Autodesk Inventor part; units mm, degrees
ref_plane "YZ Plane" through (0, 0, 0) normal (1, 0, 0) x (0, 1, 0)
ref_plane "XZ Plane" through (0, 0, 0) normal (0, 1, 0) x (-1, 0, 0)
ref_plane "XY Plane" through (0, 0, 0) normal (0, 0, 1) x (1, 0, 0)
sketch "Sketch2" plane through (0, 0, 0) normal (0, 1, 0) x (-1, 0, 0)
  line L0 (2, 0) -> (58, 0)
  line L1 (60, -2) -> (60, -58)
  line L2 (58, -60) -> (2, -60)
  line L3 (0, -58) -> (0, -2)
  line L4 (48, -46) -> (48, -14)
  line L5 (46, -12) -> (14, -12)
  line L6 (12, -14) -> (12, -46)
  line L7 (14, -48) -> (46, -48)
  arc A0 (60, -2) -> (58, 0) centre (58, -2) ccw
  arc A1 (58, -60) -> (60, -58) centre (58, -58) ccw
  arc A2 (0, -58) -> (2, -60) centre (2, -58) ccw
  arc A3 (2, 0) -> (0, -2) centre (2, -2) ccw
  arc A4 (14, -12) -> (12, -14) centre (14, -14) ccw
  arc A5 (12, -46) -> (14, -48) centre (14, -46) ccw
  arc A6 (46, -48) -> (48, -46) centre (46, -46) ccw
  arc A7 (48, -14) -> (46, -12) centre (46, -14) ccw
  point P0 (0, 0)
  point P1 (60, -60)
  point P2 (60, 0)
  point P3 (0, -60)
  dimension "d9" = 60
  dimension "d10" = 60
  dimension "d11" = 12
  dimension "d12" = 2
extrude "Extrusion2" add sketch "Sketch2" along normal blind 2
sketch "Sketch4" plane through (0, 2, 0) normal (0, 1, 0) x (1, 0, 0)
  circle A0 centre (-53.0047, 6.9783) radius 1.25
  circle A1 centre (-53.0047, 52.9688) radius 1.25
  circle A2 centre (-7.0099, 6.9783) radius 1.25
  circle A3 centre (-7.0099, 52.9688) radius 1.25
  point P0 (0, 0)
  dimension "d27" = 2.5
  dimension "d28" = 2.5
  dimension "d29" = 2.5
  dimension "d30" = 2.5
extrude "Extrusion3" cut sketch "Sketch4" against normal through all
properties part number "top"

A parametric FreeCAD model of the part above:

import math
import FreeCAD as App
import Part
import Sketcher
Q = App.Units.Quantity

doc = App.newDocument("Part")
params = doc.addObject("Spreadsheet::Sheet", "Params")
for row, (alias, value) in enumerate([
    ("sketch1_radius", "2 mm"),
    ("pad1_length", "2 mm"),
    ("sketch2_diameter", "2.5 mm"),
], start=1):
    params.set(f"A{row}", alias)
    params.set(f"B{row}", "=" + value)
    params.setAlias(f"B{row}", alias)

body = doc.addObject("PartDesign::Body", "Body")

# Sketch on XZ plane
sketch1 = doc.addObject("Sketcher::SketchObject", "Sketch")
body.addObject(sketch1)
sketch1.AttachmentSupport = (doc.XZ_Plane, [""])
sketch1.MapMode = "FlatFace"
sketch1.addGeometry([
    Part.LineSegment(App.Vector(-58, 0, 0), App.Vector(-2, 0, 0)),  # 0
    Part.ArcOfCircle(Part.Circle(App.Vector(-2, -2, 0), App.Vector(0, 0, 1), 2), math.radians(0), math.radians(90)),  # 1
    Part.LineSegment(App.Vector(0, -2, 0), App.Vector(0, -58, 0)),  # 2
    Part.ArcOfCircle(Part.Circle(App.Vector(-2, -58, 0), App.Vector(0, 0, 1), 2), math.radians(-90), math.radians(0)),  # 3
    Part.LineSegment(App.Vector(-2, -60, 0), App.Vector(-58, -60, 0)),  # 4
    Part.ArcOfCircle(Part.Circle(App.Vector(-58, -58, 0), App.Vector(0, 0, 1), 2), math.radians(180), math.radians(270)),  # 5
    Part.LineSegment(App.Vector(-60, -58, 0), App.Vector(-60, -2, 0)),  # 6
    Part.ArcOfCircle(Part.Circle(App.Vector(-58, -2, 0), App.Vector(0, 0, 1), 2), math.radians(90), math.radians(180)),  # 7
    Part.LineSegment(App.Vector(-48, -14, 0), App.Vector(-48, -46, 0)),  # 8
    Part.ArcOfCircle(Part.Circle(App.Vector(-46, -46, 0), App.Vector(0, 0, 1), 2), math.radians(180), math.radians(270)),  # 9
    Part.LineSegment(App.Vector(-46, -48, 0), App.Vector(-14, -48, 0)),  # 10
    Part.ArcOfCircle(Part.Circle(App.Vector(-14, -46, 0), App.Vector(0, 0, 1), 2), math.radians(-90), math.radians(0)),  # 11
    Part.LineSegment(App.Vector(-12, -46, 0), App.Vector(-12, -14, 0)),  # 12
    Part.ArcOfCircle(Part.Circle(App.Vector(-14, -14, 0), App.Vector(0, 0, 1), 2), math.radians(0), math.radians(90)),  # 13
    Part.LineSegment(App.Vector(-14, -12, 0), App.Vector(-46, -12, 0)),  # 14
    Part.ArcOfCircle(Part.Circle(App.Vector(-46, -14, 0), App.Vector(0, 0, 1), 2), math.radians(90), math.radians(180)),  # 15
], False)
sketch1.addConstraint([
    Sketcher.Constraint("Tangent", 0, 2, 1, 2),
    Sketcher.Constraint("Tangent", 1, 1, 2, 1),
    Sketcher.Constraint("Tangent", 2, 2, 3, 2),
    Sketcher.Constraint("Tangent", 3, 1, 4, 1),
    Sketcher.Constraint("Tangent", 4, 2, 5, 2),
    Sketcher.Constraint("Tangent", 5, 1, 6, 1),
    Sketcher.Constraint("Tangent", 6, 2, 7, 2),
    Sketcher.Constraint("Tangent", 7, 1, 0, 1),
    Sketcher.Constraint("Tangent", 8, 2, 9, 1),
    Sketcher.Constraint("Tangent", 9, 2, 10, 1),
    Sketcher.Constraint("Tangent", 10, 2, 11, 1),
    Sketcher.Constraint("Tangent", 11, 2, 12, 1),
    Sketcher.Constraint("Tangent", 12, 2, 13, 1),
    Sketcher.Constraint("Tangent", 13, 2, 14, 1),
    Sketcher.Constraint("Tangent", 14, 2, 15, 1),
    Sketcher.Constraint("Tangent", 15, 2, 8, 1),
    Sketcher.Constraint("Horizontal", 0),
    Sketcher.Constraint("Vertical", 2),
    Sketcher.Constraint("Horizontal", 4),
    Sketcher.Constraint("Vertical", 6),
    Sketcher.Constraint("Vertical", 8),
    Sketcher.Constraint("Horizontal", 10),
    Sketcher.Constraint("Vertical", 12),
    Sketcher.Constraint("Horizontal", 14),
    Sketcher.Constraint("Equal", 1, 3),
    Sketcher.Constraint("Equal", 3, 5),
    Sketcher.Constraint("Equal", 5, 7),
    Sketcher.Constraint("Equal", 7, 9),
    Sketcher.Constraint("Equal", 9, 11),
    Sketcher.Constraint("Equal", 11, 13),
    Sketcher.Constraint("Equal", 13, 15),
    Sketcher.Constraint("PointOnObject", 0, 2, -1),
    Sketcher.Constraint("PointOnObject", 1, 1, -2),
    Sketcher.Constraint("Equal", 4, 2),
    Sketcher.Constraint("Equal", 14, 8),
    Sketcher.Constraint("Radius", 1, Q("2 mm")),
    Sketcher.Constraint("DistanceY", 3, 1, -1, 1, Q("60 mm")),
    Sketcher.Constraint("DistanceX", 11, 2, -1, 1, Q("12 mm")),
    Sketcher.Constraint("DistanceY", 13, 2, -1, 1, Q("12 mm")),
    Sketcher.Constraint("DistanceX", 5, 3, 9, 3, Q("12 mm")),
])
sketch1.setExpression("Constraints[35]", "Params.sketch1_radius")
pad1 = doc.addObject("PartDesign::Pad", "Pad")
body.addObject(pad1)
pad1.Profile = sketch1
pad1.setExpression("Length", "Params.pad1_length")
pad1.Reversed = True

# Sketch on XZ plane
sketch2 = doc.addObject("Sketcher::SketchObject", "Sketch001")
body.addObject(sketch2)
sketch2.AttachmentSupport = (doc.XZ_Plane, [""])
sketch2.MapMode = "FlatFace"
sketch2.AttachmentOffset = App.Placement(App.Vector(0, 0, -2), App.Rotation())
sketch2.addGeometry([
    Part.Circle(App.Vector(-53.0047, -6.9783, 0), App.Vector(0, 0, 1), 1.25),
    Part.Circle(App.Vector(-53.0047, -52.9688, 0), App.Vector(0, 0, 1), 1.25),
    Part.Circle(App.Vector(-7.0099, -6.9783, 0), App.Vector(0, 0, 1), 1.25),
    Part.Circle(App.Vector(-7.0099, -52.9688, 0), App.Vector(0, 0, 1), 1.25),
], False)
sketch2.addConstraint([
    Sketcher.Constraint("Equal", 0, 1),
    Sketcher.Constraint("Equal", 1, 2),
    Sketcher.Constraint("Equal", 2, 3),
    Sketcher.Constraint("Horizontal", 0, 3, 2, 3),
    Sketcher.Constraint("Horizontal", 1, 3, 3, 3),
    Sketcher.Constraint("Vertical", 0, 3, 1, 3),
    Sketcher.Constraint("Vertical", 2, 3, 3, 3),
    Sketcher.Constraint("Diameter", 0, Q("2.5 mm")),
    Sketcher.Constraint("DistanceX", 2, 3, -1, 1, Q("7.01 mm")),
    Sketcher.Constraint("DistanceX", 0, 3, -1, 1, Q("53.0047 mm")),
    Sketcher.Constraint("DistanceY", 0, 3, -1, 1, Q("6.9783 mm")),
    Sketcher.Constraint("DistanceY", 1, 3, -1, 1, Q("52.9688 mm")),
])
sketch2.setExpression("Constraints[7]", "Params.sketch2_diameter")
pocket1 = doc.addObject("PartDesign::Pocket", "Pocket")
body.addObject(pocket1)
pocket1.Profile = sketch2
pocket1.Type = "ThroughAll"
pocket1.Reversed = True

doc.recompute()
